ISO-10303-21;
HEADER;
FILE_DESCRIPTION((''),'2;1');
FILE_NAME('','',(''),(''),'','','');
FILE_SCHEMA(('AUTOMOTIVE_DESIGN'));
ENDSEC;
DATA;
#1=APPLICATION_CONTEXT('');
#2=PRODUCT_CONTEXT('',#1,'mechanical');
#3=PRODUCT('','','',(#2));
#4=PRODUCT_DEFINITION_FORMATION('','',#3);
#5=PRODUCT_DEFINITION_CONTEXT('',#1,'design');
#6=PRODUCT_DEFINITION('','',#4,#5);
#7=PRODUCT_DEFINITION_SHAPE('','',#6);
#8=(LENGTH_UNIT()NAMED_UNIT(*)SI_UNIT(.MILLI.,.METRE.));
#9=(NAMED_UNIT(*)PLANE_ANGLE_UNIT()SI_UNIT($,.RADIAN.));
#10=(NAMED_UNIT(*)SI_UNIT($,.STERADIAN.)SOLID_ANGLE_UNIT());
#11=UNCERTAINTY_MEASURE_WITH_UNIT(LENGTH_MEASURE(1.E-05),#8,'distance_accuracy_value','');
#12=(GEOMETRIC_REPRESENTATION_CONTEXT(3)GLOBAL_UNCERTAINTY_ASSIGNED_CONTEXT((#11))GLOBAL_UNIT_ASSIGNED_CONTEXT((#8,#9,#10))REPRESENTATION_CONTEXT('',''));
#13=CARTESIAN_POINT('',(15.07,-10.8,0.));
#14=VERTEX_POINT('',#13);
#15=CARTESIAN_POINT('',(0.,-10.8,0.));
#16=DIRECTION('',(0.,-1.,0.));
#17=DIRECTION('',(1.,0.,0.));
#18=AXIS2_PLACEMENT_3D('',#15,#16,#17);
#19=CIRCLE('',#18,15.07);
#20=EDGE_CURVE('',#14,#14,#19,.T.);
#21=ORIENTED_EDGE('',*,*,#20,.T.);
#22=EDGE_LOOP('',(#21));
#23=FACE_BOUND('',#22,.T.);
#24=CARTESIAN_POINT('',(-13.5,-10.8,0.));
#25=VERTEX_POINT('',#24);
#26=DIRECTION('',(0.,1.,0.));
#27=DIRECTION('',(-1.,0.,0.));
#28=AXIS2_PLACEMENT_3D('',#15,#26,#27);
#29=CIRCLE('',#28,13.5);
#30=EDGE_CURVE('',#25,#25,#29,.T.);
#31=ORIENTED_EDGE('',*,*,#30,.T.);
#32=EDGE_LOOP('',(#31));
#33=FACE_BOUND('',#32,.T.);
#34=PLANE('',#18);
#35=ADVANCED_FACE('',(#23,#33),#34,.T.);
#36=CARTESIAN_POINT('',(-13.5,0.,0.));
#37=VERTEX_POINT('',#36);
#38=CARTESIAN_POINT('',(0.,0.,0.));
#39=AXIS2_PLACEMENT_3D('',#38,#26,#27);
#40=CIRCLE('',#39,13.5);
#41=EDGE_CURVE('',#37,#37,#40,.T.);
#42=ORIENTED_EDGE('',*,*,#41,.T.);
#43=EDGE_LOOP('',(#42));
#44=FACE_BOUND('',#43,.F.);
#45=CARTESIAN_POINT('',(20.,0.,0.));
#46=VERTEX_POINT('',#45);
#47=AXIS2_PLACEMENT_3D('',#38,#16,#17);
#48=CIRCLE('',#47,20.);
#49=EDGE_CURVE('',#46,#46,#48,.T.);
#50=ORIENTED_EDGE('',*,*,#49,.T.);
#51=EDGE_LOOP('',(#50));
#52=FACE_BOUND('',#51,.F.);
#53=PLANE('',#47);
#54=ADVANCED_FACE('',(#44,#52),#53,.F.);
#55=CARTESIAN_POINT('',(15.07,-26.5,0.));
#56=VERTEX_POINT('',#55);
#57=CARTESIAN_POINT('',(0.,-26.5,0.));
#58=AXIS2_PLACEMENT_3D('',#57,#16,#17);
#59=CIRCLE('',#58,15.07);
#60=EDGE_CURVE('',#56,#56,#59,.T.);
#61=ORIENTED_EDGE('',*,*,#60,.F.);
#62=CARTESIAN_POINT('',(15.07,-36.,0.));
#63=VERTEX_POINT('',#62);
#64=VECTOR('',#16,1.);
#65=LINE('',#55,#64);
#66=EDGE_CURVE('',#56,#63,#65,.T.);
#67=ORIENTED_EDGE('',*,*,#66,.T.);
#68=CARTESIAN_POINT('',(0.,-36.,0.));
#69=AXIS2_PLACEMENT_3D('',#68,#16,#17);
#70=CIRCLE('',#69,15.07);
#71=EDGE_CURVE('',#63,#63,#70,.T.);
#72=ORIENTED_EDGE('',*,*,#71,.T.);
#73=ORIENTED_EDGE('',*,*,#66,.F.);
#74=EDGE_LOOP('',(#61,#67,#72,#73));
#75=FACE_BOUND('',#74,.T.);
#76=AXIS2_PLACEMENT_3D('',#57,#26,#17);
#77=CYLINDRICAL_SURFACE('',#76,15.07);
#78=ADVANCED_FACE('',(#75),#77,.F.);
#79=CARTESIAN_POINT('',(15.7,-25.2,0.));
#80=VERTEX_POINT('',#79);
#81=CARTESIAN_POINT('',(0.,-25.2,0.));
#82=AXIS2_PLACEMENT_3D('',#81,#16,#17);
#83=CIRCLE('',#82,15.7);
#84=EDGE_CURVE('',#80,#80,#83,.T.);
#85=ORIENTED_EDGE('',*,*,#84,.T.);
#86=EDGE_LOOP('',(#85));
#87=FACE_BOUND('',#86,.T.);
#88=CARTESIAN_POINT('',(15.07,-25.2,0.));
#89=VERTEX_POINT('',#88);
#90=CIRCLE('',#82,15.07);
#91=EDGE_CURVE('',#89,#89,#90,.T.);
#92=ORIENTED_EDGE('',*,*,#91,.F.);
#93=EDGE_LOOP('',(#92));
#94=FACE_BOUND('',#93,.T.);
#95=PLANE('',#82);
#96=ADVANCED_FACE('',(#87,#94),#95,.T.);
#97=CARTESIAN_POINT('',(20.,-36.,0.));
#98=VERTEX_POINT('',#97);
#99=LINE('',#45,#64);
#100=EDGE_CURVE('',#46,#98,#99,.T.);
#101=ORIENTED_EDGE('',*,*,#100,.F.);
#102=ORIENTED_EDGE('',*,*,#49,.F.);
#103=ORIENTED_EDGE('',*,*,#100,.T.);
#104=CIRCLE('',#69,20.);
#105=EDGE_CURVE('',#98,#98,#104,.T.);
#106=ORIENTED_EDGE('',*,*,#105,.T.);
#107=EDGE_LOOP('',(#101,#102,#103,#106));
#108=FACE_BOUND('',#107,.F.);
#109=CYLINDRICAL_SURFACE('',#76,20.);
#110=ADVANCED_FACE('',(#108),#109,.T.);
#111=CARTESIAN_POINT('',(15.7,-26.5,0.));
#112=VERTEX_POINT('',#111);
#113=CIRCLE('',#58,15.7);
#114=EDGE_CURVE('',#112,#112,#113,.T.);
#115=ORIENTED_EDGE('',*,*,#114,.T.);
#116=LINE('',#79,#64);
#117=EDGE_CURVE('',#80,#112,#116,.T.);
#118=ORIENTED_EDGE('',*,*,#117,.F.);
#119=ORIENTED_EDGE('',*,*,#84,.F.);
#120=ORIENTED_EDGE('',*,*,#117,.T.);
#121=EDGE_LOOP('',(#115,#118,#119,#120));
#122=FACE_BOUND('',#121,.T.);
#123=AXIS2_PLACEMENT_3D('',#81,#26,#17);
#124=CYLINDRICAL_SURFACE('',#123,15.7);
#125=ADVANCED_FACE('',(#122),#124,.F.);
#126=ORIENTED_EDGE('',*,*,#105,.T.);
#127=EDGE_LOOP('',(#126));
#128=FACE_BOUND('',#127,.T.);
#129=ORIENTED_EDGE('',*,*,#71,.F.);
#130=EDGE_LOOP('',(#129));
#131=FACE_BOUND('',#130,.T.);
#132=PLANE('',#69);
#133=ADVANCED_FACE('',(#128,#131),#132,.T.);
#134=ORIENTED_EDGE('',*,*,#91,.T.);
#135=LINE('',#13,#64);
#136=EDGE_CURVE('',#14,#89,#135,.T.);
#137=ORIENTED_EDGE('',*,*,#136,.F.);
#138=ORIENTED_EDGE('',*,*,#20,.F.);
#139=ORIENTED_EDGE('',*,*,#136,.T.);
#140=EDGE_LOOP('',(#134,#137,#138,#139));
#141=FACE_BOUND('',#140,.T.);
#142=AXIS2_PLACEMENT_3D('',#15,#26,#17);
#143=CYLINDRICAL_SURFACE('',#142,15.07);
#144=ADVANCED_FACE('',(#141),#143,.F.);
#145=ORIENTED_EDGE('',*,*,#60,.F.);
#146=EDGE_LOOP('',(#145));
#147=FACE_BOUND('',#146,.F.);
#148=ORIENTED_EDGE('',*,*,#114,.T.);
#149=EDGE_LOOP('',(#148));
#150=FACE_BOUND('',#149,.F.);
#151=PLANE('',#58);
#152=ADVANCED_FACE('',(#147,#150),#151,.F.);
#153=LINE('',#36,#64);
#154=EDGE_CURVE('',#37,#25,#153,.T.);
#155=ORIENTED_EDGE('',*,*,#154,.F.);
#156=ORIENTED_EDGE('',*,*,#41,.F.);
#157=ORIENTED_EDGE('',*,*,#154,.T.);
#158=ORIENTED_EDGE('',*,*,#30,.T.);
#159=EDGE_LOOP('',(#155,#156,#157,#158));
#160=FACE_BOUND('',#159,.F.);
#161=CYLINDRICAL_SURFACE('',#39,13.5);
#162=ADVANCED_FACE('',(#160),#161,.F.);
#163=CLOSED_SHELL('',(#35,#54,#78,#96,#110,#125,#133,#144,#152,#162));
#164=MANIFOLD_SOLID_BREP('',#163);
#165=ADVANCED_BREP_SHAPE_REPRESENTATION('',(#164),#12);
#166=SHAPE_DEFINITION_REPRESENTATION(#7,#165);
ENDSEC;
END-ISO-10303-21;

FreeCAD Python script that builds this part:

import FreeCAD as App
import Part
import Sketcher
from FreeCAD import Vector
Q = App.Units.Quantity

doc = App.newDocument("Part")
body = doc.addObject("PartDesign::Body", "Body")

sketch1 = doc.addObject("Sketcher::SketchObject", "Sketch")
body.addObject(sketch1)
sketch1.AttachmentSupport = (doc.XZ_Plane, [""])
sketch1.MapMode = "FlatFace"
sketch1.addGeometry(Part.Circle(Vector(0, 0, 0), Vector(0, 0, 1), 20), False)
sketch1.addConstraint([
    Sketcher.Constraint("Coincident", 0, 3, -1, 1),
    Sketcher.Constraint("Diameter", 0, Q("40 mm")),
])
pad1 = doc.addObject("PartDesign::Pad", "Pad")
body.addObject(pad1)
pad1.Profile = sketch1
pad1.Length = 10.8

sketch2 = doc.addObject("Sketcher::SketchObject", "Sketch001")
body.addObject(sketch2)
sketch2.AttachmentSupport = (doc.XZ_Plane, [""])
sketch2.MapMode = "FlatFace"
sketch2.addGeometry(Part.Circle(Vector(0, 0, 0), Vector(0, 0, 1), 13.5), False)
sketch2.addConstraint([
    Sketcher.Constraint("Coincident", 0, 3, -1, 1),
    Sketcher.Constraint("Diameter", 0, Q("27 mm")),
])
pocket1 = doc.addObject("PartDesign::Pocket", "Pocket")
body.addObject(pocket1)
pocket1.Profile = sketch2
pocket1.Length = 10.8
pocket1.Reversed = True

sketch3 = doc.addObject("Sketcher::SketchObject", "Sketch002")
body.addObject(sketch3)
sketch3.AttachmentSupport = (doc.XZ_Plane, [""])
sketch3.MapMode = "FlatFace"
sketch3.AttachmentOffset = App.Placement(Vector(0, 0, 10.8), App.Rotation())
sketch3.addGeometry([
    Part.Circle(Vector(0, 0, 0), Vector(0, 0, 1), 20),
    Part.Circle(Vector(0, 0, 0), Vector(0, 0, 1), 15.07),
], False)
sketch3.addConstraint([
    Sketcher.Constraint("Coincident", 0, 3, -1, 1),
    Sketcher.Constraint("Coincident", 1, 3, -1, 1),
    Sketcher.Constraint("Diameter", 0, Q("40 mm")),
    Sketcher.Constraint("Diameter", 1, Q("30.14 mm")),
])
pad2 = doc.addObject("PartDesign::Pad", "Pad001")
body.addObject(pad2)
pad2.Profile = sketch3
pad2.Length = 14.4

sketch4 = doc.addObject("Sketcher::SketchObject", "Sketch003")
body.addObject(sketch4)
sketch4.AttachmentSupport = (doc.XZ_Plane, [""])
sketch4.MapMode = "FlatFace"
sketch4.AttachmentOffset = App.Placement(Vector(0, 0, 25.2), App.Rotation())
sketch4.addGeometry([
    Part.Circle(Vector(0, 0, 0), Vector(0, 0, 1), 20),
    Part.Circle(Vector(0, 0, 0), Vector(0, 0, 1), 15.7),
], False)
sketch4.addConstraint([
    Sketcher.Constraint("Coincident", 0, 3, -1, 1),
    Sketcher.Constraint("Coincident", 1, 3, -1, 1),
    Sketcher.Constraint("Diameter", 0, Q("40 mm")),
    Sketcher.Constraint("Diameter", 1, Q("31.4 mm")),
])
pad3 = doc.addObject("PartDesign::Pad", "Pad002")
body.addObject(pad3)
pad3.Profile = sketch4
pad3.Length = 1.3

sketch5 = doc.addObject("Sketcher::SketchObject", "Sketch004")
body.addObject(sketch5)
sketch5.AttachmentSupport = (doc.XZ_Plane, [""])
sketch5.MapMode = "FlatFace"
sketch5.AttachmentOffset = App.Placement(Vector(0, 0, 26.5), App.Rotation())
sketch5.addGeometry([
    Part.Circle(Vector(0, 0, 0), Vector(0, 0, 1), 20),
    Part.Circle(Vector(0, 0, 0), Vector(0, 0, 1), 15.07),
], False)
sketch5.addConstraint([
    Sketcher.Constraint("Coincident", 0, 3, -1, 1),
    Sketcher.Constraint("Coincident", 1, 3, -1, 1),
    Sketcher.Constraint("Diameter", 0, Q("40 mm")),
    Sketcher.Constraint("Diameter", 1, Q("30.14 mm")),
])
pad4 = doc.addObject("PartDesign::Pad", "Pad003")
body.addObject(pad4)
pad4.Profile = sketch5
pad4.Length = 9.5

doc.recompute()
